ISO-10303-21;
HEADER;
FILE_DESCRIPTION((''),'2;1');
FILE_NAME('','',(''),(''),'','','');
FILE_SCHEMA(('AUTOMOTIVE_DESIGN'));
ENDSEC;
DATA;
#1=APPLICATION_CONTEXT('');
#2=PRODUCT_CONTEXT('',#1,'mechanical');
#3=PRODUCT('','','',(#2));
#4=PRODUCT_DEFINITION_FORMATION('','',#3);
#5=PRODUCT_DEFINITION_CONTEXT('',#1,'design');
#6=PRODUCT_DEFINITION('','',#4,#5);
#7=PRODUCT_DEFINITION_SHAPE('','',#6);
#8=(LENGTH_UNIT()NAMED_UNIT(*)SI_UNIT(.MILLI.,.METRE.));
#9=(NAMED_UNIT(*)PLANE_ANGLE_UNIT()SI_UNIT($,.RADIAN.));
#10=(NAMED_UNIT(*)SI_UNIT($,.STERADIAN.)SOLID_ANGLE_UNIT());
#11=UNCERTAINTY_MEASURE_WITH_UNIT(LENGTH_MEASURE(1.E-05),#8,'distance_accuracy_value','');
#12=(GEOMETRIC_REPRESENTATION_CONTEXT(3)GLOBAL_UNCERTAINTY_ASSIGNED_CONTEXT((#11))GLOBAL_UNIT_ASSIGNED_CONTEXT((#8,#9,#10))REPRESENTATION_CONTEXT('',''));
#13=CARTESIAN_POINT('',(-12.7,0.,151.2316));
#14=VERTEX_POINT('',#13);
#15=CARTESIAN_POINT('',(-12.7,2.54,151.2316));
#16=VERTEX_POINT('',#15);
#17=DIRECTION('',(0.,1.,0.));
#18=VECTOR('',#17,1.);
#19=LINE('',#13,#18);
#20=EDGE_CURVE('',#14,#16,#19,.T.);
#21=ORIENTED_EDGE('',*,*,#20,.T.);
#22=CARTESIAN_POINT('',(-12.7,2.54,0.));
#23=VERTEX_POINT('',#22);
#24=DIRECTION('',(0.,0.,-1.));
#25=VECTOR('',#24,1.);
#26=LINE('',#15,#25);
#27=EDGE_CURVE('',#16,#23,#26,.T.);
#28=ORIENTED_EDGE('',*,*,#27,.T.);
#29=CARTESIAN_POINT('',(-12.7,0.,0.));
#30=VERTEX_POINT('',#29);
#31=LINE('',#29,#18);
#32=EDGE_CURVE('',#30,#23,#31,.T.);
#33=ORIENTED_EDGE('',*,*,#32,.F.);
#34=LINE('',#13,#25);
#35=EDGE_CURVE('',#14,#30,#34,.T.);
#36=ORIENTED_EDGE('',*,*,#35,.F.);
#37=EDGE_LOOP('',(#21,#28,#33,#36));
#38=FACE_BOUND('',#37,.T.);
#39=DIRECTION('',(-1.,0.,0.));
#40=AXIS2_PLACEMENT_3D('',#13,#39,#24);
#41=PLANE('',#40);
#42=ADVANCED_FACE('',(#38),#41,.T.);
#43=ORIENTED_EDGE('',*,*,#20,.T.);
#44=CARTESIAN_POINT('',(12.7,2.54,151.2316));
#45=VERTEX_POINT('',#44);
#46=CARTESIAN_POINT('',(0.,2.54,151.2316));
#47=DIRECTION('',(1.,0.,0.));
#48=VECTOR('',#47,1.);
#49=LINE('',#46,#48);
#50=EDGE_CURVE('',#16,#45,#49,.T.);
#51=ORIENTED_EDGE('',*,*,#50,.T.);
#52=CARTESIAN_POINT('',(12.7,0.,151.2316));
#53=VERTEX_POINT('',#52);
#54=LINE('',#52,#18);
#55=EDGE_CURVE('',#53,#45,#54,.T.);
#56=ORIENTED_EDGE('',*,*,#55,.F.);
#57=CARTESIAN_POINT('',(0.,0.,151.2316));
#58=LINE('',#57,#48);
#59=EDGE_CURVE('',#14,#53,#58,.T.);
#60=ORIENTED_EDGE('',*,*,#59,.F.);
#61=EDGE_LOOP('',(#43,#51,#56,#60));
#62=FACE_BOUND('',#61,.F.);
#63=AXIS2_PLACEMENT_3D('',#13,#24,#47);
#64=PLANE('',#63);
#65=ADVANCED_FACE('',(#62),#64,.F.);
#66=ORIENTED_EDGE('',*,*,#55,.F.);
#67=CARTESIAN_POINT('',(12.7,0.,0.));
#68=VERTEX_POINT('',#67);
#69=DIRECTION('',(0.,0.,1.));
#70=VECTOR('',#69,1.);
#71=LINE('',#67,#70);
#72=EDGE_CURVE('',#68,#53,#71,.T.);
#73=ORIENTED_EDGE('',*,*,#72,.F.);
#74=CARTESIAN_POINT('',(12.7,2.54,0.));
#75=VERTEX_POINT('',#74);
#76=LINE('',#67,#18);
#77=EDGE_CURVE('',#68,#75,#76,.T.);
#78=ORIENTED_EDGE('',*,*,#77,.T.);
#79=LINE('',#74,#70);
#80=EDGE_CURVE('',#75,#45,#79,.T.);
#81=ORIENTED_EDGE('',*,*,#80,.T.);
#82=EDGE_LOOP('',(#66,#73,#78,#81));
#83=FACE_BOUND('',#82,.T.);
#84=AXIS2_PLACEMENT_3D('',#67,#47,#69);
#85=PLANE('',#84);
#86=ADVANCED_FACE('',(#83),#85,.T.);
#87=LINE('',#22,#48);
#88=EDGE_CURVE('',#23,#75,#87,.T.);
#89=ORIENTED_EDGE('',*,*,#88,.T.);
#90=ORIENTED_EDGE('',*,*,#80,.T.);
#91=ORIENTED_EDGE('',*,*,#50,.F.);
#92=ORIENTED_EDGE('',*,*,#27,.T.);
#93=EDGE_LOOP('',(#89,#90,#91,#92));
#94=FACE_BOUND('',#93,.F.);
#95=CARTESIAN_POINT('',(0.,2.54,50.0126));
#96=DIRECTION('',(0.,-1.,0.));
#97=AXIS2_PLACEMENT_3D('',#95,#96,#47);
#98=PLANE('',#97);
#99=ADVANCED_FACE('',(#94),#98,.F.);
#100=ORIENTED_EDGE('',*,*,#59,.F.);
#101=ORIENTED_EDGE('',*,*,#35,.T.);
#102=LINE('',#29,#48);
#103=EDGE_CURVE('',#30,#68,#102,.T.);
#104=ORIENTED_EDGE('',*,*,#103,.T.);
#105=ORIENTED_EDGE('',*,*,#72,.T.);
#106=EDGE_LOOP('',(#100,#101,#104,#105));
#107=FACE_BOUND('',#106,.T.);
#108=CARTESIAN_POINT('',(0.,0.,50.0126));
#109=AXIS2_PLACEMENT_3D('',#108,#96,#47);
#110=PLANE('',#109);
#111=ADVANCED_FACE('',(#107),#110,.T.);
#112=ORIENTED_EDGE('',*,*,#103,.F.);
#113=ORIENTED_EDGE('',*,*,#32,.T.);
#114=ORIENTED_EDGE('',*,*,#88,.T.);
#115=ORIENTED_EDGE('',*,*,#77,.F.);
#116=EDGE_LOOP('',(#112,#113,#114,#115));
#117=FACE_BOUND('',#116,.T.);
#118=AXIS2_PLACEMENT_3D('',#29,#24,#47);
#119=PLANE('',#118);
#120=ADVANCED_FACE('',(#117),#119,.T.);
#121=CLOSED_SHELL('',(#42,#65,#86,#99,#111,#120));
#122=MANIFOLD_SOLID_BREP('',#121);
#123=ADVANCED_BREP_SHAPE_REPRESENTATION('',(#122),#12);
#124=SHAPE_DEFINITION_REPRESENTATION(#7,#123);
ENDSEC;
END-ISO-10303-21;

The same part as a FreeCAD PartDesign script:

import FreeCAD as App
import Part
import Sketcher
Q = App.Units.Quantity


def add_polygon(sketch, points):
    """Adds a closed chain of lines whose ends are joined by coincident constraints."""
    first, n = sketch.GeometryCount, len(points)
    for a, b in zip(points, points[1:] + points[:1]):
        sketch.addGeometry(Part.LineSegment(App.Vector(*a, 0), App.Vector(*b, 0)), False)
    for i in range(n):
        sketch.addConstraint(Sketcher.Constraint("Coincident", first + i, 2, first + (i + 1) % n, 1))

doc = App.newDocument("Part")
body = doc.addObject("PartDesign::Body", "Body")

# Sketch on XZ plane
sketch1 = doc.addObject("Sketcher::SketchObject", "Sketch")
body.addObject(sketch1)
sketch1.AttachmentSupport = (doc.XZ_Plane, [""])
sketch1.MapMode = "FlatFace"
add_polygon(sketch1, [(-13, 0), (13, 0), (13, 151), (-13, 151)])  # lines 0-3
sketch1.addConstraint(Sketcher.Constraint("Horizontal", 0))
sketch1.addConstraint(Sketcher.Constraint("Vertical", 1))
sketch1.addConstraint(Sketcher.Constraint("Horizontal", 2))
sketch1.addConstraint(Sketcher.Constraint("Vertical", 3))
sketch1.addConstraint(Sketcher.Constraint("Symmetric", 0, 2, 3, 2, -1, 1))
sketch1.addConstraint(Sketcher.Constraint("DistanceX", 0, 1, 0, 2, Q("1 in")))
sketch1.addConstraint(Sketcher.Constraint("DistanceY", 1, 1, 1, 2, Q("5.954 in")))
pad1 = doc.addObject("PartDesign::Pad", "Pad")
body.addObject(pad1)
pad1.Profile = sketch1
pad1.Length = Q("0.1 in")
pad1.Reversed = True

doc.recompute()
